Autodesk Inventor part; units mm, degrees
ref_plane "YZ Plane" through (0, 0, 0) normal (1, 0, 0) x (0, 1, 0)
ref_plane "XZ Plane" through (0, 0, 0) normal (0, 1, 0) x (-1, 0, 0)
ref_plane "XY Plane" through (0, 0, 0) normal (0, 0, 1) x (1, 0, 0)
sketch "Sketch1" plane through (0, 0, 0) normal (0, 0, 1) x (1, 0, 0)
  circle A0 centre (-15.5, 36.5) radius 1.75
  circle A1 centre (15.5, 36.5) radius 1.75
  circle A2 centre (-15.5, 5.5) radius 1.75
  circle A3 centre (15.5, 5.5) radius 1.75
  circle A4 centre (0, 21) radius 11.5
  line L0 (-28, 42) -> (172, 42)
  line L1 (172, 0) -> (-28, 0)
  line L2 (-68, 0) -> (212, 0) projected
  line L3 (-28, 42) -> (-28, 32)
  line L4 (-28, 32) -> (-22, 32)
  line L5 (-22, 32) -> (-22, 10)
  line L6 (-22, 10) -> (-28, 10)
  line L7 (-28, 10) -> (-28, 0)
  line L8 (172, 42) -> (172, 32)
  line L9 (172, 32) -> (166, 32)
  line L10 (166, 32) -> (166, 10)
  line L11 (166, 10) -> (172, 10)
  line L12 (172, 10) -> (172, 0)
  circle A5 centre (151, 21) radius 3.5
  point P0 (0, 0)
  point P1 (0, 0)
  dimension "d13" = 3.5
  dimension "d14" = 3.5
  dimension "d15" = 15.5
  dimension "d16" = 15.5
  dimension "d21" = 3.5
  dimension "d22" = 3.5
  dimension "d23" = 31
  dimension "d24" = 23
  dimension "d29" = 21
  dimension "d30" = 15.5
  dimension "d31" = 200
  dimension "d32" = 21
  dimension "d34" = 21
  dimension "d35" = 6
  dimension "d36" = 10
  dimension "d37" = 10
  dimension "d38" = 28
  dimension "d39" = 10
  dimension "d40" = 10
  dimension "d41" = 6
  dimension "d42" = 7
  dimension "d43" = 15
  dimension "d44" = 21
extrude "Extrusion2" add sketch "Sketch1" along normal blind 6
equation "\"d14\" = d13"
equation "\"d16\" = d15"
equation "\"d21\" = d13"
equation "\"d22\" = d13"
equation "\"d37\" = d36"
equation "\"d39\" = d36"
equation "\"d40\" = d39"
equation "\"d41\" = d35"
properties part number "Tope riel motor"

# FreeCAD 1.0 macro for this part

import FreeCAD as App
import Part
import Sketcher

V = App.Vector
Q = App.Units.Quantity

doc = App.newDocument("Part")
params = doc.addObject("Spreadsheet::Sheet", "Params")
for row, (alias, value) in enumerate([
    ("sketch1_diameter", "23 mm"),
    ("sketch1_diameter2", "7 mm"),
    ("sketch1_diameter3", "3.5 mm"),
    ("sketch1_width", "200 mm"),
    ("sketch1_width2", "6 mm"),
    ("pad1_length", "6 mm"),
], start=1):
    params.set(f"A{row}", alias)
    params.set(f"B{row}", "=" + value)
    params.setAlias(f"B{row}", alias)

body = doc.addObject("PartDesign::Body", "Body")

# Sketch on XY plane
sketch1 = body.newObject("Sketcher::SketchObject", "Sketch")
sketch1.AttachmentSupport = (doc.getObject("XY_Plane"), [""])
sketch1.MapMode = "FlatFace"
sketch1.addGeometry(Part.LineSegment(V(172, 42, 0), V(-28, 42, 0)), False)
sketch1.addGeometry(Part.LineSegment(V(-28, 42, 0), V(-28, 32, 0)), False)
sketch1.addGeometry(Part.LineSegment(V(-28, 32, 0), V(-22, 32, 0)), False)
sketch1.addGeometry(Part.LineSegment(V(-22, 32, 0), V(-22, 10, 0)), False)
sketch1.addGeometry(Part.LineSegment(V(-22, 10, 0), V(-28, 10, 0)), False)
sketch1.addGeometry(Part.LineSegment(V(-28, 10, 0), V(-28, 0, 0)), False)
sketch1.addGeometry(Part.LineSegment(V(-28, 0, 0), V(172, 0, 0)), False)
sketch1.addGeometry(Part.LineSegment(V(172, 0, 0), V(172, 10, 0)), False)
sketch1.addGeometry(Part.LineSegment(V(172, 10, 0), V(166, 10, 0)), False)
sketch1.addGeometry(Part.LineSegment(V(166, 10, 0), V(166, 32, 0)), False)
sketch1.addGeometry(Part.LineSegment(V(166, 32, 0), V(172, 32, 0)), False)
sketch1.addGeometry(Part.LineSegment(V(172, 32, 0), V(172, 42, 0)), False)
sketch1.addGeometry(Part.Circle(V(-15.5, 5.5, 0), V(0, 0, 1), 1.75), False)
sketch1.addGeometry(Part.Circle(V(15.5, 5.5, 0), V(0, 0, 1), 1.75), False)
sketch1.addGeometry(Part.Circle(V(0, 21, 0), V(0, 0, 1), 11.5), False)
sketch1.addGeometry(Part.Circle(V(-15.5, 36.5, 0), V(0, 0, 1), 1.75), False)
sketch1.addGeometry(Part.Circle(V(15.5, 36.5, 0), V(0, 0, 1), 1.75), False)
sketch1.addGeometry(Part.Circle(V(151, 21, 0), V(0, 0, 1), 3.5), False)
sketch1.addConstraint(Sketcher.Constraint("Coincident", 0, 2, 1, 1))
sketch1.addConstraint(Sketcher.Constraint("Coincident", 1, 2, 2, 1))
sketch1.addConstraint(Sketcher.Constraint("Coincident", 2, 2, 3, 1))
sketch1.addConstraint(Sketcher.Constraint("Coincident", 3, 2, 4, 1))
sketch1.addConstraint(Sketcher.Constraint("Coincident", 4, 2, 5, 1))
sketch1.addConstraint(Sketcher.Constraint("Coincident", 5, 2, 6, 1))
sketch1.addConstraint(Sketcher.Constraint("Coincident", 6, 2, 7, 1))
sketch1.addConstraint(Sketcher.Constraint("Coincident", 7, 2, 8, 1))
sketch1.addConstraint(Sketcher.Constraint("Coincident", 8, 2, 9, 1))
sketch1.addConstraint(Sketcher.Constraint("Coincident", 9, 2, 10, 1))
sketch1.addConstraint(Sketcher.Constraint("Coincident", 10, 2, 11, 1))
sketch1.addConstraint(Sketcher.Constraint("Coincident", 11, 2, 0, 1))
sketch1.addConstraint(Sketcher.Constraint("Horizontal", 0))
sketch1.addConstraint(Sketcher.Constraint("Vertical", 1))
sketch1.addConstraint(Sketcher.Constraint("Horizontal", 2))
sketch1.addConstraint(Sketcher.Constraint("Vertical", 3))
sketch1.addConstraint(Sketcher.Constraint("Horizontal", 4))
sketch1.addConstraint(Sketcher.Constraint("Vertical", 5))
sketch1.addConstraint(Sketcher.Constraint("Horizontal", 6))
sketch1.addConstraint(Sketcher.Constraint("Vertical", 7))
sketch1.addConstraint(Sketcher.Constraint("Horizontal", 8))
sketch1.addConstraint(Sketcher.Constraint("Vertical", 9))
sketch1.addConstraint(Sketcher.Constraint("Horizontal", 10))
sketch1.addConstraint(Sketcher.Constraint("Vertical", 11))
sketch1.addConstraint(Sketcher.Constraint("Equal", 12, 13))
sketch1.addConstraint(Sketcher.Constraint("Equal", 13, 15))
sketch1.addConstraint(Sketcher.Constraint("Equal", 15, 16))
sketch1.addConstraint(Sketcher.Constraint("Symmetric", 12, 3, 13, 3, -2))
sketch1.addConstraint(Sketcher.Constraint("Symmetric", 15, 3, 16, 3, -2))
sketch1.addConstraint(Sketcher.Constraint("PointOnObject", 14, 3, -2))
sketch1.addConstraint(Sketcher.Constraint("PointOnObject", 5, 2, -1))
sketch1.addConstraint(Sketcher.Constraint("Horizontal", 14, 3, 17, 3))
sketch1.addConstraint(Sketcher.Constraint("Horizontal", 4, 2, 7, 2))
sketch1.addConstraint(Sketcher.Constraint("Horizontal", 2, 2, 9, 2))
sketch1.addConstraint(Sketcher.Constraint("Vertical", 12, 3, 15, 3))
sketch1.addConstraint(Sketcher.Constraint("Vertical", 1, 2, 4, 2))
sketch1.addConstraint(Sketcher.Constraint("Vertical", 7, 2, 10, 2))
sketch1.addConstraint(Sketcher.Constraint("Equal", 4, 8))
sketch1.addConstraint(Sketcher.Constraint("Equal", 1, 5))
sketch1.addConstraint(Sketcher.Constraint("Diameter", 14, Q("23 mm")))
sketch1.addConstraint(Sketcher.Constraint("Diameter", 17, Q("7 mm")))
sketch1.addConstraint(Sketcher.Constraint("Diameter", 12, Q("3.5 mm")))
sketch1.addConstraint(Sketcher.Constraint("DistanceX", 0, 2, 0, 1, Q("200 mm")))
sketch1.addConstraint(Sketcher.Constraint("DistanceX", 2, 1, 2, 2, Q("6 mm")))
sketch1.addConstraint(Sketcher.Constraint("DistanceY", 1, 2, 1, 1, Q("10 mm")))
sketch1.addConstraint(Sketcher.Constraint("DistanceY", -1, 1, 14, 3, Q("21 mm")))
sketch1.addConstraint(Sketcher.Constraint("DistanceX", 0, 2, -1, 1, Q("28 mm")))
sketch1.addConstraint(Sketcher.Constraint("DistanceX", 12, 3, 13, 3, Q("31 mm")))
sketch1.addConstraint(Sketcher.Constraint("DistanceY", 12, 3, 15, 3, Q("31 mm")))
sketch1.addConstraint(Sketcher.Constraint("DistanceY", 14, 3, 0, 2, Q("21 mm")))
sketch1.addConstraint(Sketcher.Constraint("DistanceX", 17, 3, 6, 2, Q("21 mm")))
sketch1.addConstraint(Sketcher.Constraint("DistanceY", 12, 3, 14, 3, Q("15.5 mm")))
sketch1.setExpression("Constraints[39]", "Params.sketch1_diameter")
sketch1.setExpression("Constraints[40]", "Params.sketch1_diameter2")
sketch1.setExpression("Constraints[41]", "Params.sketch1_diameter3")
sketch1.setExpression("Constraints[42]", "Params.sketch1_width")
sketch1.setExpression("Constraints[43]", "Params.sketch1_width2")
pad1 = body.newObject("PartDesign::Pad", "Pad")
pad1.Profile = sketch1
pad1.setExpression("Length", "Params.pad1_length")

doc.recompute()
